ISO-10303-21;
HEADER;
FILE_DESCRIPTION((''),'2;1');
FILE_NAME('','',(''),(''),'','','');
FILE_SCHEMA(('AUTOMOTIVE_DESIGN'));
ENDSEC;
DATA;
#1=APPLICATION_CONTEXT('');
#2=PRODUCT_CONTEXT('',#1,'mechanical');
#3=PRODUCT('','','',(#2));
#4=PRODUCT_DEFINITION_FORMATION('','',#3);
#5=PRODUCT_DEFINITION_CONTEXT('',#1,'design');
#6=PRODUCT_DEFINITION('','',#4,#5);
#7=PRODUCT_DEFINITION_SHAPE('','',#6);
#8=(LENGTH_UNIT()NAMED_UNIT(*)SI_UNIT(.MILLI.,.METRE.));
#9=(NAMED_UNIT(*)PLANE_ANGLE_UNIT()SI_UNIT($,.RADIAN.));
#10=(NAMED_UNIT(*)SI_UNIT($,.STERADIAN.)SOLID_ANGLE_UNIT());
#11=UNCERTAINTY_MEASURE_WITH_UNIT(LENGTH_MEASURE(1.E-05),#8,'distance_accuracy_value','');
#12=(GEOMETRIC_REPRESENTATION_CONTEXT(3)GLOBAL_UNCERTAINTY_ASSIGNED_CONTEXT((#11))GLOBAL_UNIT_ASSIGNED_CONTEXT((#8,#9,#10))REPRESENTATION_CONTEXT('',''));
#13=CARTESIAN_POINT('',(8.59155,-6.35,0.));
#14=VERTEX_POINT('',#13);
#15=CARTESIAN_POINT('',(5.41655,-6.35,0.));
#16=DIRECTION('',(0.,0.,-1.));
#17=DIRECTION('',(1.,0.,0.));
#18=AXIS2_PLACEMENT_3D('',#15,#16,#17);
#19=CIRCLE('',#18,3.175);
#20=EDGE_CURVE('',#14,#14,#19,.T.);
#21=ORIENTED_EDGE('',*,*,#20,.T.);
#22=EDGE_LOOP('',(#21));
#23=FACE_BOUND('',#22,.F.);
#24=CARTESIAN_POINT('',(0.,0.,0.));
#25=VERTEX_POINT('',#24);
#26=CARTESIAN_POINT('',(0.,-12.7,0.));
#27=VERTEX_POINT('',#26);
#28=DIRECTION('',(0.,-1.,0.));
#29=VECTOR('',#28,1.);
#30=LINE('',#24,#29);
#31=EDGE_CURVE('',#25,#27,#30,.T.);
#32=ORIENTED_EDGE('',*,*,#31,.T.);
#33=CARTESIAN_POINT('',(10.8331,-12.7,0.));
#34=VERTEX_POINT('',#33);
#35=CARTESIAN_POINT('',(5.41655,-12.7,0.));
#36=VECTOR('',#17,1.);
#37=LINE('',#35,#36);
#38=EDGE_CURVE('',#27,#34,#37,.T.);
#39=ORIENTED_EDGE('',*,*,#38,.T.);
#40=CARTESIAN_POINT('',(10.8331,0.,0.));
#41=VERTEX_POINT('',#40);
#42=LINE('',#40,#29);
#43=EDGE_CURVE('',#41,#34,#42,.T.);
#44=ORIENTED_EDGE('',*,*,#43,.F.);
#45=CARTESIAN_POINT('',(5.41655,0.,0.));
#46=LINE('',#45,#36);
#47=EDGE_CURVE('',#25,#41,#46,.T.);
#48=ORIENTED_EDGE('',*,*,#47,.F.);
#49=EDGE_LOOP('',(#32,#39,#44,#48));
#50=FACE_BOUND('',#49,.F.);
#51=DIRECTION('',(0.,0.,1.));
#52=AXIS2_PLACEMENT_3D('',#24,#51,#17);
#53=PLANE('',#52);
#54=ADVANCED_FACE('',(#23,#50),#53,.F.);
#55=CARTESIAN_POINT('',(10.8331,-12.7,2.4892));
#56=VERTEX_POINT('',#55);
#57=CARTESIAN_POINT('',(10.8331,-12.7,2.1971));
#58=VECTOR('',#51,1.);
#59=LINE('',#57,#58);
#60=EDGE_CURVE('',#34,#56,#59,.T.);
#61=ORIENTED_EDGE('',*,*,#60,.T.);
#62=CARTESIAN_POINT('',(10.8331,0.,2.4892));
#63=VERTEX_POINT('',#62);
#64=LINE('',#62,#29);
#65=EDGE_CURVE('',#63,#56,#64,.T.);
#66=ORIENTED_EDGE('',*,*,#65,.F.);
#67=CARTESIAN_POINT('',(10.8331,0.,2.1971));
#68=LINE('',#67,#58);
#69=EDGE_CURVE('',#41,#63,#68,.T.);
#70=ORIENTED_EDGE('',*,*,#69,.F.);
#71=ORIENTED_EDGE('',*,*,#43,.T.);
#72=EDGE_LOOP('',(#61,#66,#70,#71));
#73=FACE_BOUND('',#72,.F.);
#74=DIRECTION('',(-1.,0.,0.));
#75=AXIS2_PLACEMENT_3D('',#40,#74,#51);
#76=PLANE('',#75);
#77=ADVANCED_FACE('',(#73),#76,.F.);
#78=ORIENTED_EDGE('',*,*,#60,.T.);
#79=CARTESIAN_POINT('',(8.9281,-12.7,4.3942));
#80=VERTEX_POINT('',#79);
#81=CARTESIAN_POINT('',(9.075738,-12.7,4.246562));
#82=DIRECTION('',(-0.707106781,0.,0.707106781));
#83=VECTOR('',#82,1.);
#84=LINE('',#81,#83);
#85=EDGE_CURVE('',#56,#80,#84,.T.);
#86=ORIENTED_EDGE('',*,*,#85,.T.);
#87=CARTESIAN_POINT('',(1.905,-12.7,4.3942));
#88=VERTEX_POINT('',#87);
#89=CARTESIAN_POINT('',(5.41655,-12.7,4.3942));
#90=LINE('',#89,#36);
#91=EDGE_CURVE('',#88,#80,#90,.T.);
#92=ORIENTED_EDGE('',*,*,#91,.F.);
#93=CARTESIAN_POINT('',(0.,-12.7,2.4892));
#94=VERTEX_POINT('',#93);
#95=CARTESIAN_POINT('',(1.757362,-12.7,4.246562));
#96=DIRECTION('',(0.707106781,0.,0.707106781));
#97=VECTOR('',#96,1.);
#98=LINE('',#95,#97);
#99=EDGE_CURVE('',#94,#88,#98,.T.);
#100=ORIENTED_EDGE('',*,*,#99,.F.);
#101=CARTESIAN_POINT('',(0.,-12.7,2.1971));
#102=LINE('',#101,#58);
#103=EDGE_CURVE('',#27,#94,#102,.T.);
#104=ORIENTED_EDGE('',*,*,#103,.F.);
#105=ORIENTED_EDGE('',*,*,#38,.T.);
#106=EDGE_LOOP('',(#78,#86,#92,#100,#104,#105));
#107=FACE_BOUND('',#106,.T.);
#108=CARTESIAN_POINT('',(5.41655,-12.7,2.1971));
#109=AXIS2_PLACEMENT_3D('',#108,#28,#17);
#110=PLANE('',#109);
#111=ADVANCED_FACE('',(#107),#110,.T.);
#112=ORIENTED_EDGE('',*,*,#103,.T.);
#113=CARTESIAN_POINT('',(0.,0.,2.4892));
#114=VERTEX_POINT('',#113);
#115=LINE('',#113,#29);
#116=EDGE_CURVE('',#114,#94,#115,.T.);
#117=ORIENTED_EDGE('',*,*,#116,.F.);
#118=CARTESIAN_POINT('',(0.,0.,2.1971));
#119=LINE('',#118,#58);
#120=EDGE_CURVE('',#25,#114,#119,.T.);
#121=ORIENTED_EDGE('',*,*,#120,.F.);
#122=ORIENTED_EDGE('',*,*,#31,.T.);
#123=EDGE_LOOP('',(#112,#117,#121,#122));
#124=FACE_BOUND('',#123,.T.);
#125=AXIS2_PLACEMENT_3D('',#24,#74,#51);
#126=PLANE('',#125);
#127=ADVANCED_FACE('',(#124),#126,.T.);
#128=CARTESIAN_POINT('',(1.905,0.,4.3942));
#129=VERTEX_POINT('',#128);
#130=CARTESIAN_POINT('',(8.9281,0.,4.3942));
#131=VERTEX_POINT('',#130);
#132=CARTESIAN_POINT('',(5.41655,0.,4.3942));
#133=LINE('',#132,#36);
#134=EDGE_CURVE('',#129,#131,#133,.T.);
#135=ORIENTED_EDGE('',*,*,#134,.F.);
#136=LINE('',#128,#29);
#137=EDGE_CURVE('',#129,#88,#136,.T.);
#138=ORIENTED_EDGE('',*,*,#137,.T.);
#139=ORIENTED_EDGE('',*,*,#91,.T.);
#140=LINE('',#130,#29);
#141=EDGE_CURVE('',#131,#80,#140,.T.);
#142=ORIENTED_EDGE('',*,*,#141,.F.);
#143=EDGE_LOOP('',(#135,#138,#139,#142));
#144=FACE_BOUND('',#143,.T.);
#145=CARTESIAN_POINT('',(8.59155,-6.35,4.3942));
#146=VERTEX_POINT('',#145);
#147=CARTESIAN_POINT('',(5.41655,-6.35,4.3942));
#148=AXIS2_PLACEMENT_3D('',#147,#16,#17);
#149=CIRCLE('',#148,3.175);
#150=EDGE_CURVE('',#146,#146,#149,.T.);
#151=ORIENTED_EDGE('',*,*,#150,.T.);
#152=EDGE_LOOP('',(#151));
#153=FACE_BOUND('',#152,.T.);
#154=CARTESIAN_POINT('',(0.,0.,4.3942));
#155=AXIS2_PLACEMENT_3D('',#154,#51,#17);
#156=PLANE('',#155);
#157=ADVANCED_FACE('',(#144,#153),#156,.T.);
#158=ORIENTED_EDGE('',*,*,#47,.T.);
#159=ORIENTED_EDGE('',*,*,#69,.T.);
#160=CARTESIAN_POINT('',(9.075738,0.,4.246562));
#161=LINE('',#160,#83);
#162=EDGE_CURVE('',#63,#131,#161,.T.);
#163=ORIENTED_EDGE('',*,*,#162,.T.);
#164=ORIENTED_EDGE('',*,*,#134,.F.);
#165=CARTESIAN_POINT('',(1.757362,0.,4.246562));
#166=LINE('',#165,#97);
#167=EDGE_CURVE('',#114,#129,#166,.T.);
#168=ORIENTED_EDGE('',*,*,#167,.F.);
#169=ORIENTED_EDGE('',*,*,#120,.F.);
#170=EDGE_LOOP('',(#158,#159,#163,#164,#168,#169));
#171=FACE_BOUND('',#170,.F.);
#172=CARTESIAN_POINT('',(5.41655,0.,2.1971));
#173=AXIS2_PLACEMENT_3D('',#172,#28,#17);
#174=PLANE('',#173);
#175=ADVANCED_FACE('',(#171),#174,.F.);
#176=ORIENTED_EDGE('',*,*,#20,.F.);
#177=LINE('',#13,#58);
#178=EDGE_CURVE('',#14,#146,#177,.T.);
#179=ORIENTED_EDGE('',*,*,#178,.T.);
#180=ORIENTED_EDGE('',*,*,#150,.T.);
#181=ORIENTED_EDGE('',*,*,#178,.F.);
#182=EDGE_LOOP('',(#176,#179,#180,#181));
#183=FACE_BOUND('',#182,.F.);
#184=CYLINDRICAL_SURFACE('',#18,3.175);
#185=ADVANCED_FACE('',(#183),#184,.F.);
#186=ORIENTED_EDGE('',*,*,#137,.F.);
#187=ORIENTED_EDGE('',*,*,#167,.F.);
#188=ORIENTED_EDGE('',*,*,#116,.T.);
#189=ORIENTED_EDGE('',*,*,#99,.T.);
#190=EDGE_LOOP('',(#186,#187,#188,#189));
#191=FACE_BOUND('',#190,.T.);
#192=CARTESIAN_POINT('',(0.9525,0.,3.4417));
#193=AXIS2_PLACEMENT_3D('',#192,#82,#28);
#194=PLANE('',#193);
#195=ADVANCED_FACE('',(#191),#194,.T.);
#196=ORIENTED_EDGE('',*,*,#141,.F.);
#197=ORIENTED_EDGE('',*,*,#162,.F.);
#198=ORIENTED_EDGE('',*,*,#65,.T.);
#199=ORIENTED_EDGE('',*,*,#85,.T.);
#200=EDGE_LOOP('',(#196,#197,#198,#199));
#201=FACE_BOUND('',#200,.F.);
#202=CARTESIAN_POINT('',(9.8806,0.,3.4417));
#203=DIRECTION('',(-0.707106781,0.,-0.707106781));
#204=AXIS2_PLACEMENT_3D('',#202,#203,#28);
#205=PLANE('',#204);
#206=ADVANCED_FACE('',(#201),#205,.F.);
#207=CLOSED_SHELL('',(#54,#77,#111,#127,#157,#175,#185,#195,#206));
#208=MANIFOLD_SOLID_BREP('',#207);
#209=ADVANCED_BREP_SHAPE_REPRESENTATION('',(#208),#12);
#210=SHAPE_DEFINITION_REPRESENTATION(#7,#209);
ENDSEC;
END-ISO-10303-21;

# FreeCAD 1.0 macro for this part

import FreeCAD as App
import Part
import Sketcher

V = App.Vector
Q = App.Units.Quantity


def edges_at(feature, points):
    """Names of the edges that pass closest to the given points."""
    edges = feature.Shape.Edges
    near = lambda p: min(range(len(edges)), key=lambda i: edges[i].distToShape(Part.Vertex(*p))[0])
    return sorted({f"Edge{near(p) + 1}" for p in points})


def add_polygon(sketch, points):
    """Adds a closed chain of lines whose ends are joined by coincident constraints."""
    first, n = sketch.GeometryCount, len(points)
    for a, b in zip(points, points[1:] + points[:1]):
        sketch.addGeometry(Part.LineSegment(App.Vector(*a, 0), App.Vector(*b, 0)), False)
    for i in range(n):
        sketch.addConstraint(Sketcher.Constraint("Coincident", first + i, 2, first + (i + 1) % n, 1))

doc = App.newDocument("Part")
params = doc.addObject("Spreadsheet::Sheet", "Params")
for row, (alias, value) in enumerate([
    ("sketch1_height", "0.173 in"),
    ("pad1_length", "0.5 in"),
    ("chamfer_size", "0.075 in"),
    ("sketch2_diameter", "0.25 in"),
    ("pocket1_length", "1 in"),
], start=1):
    params.set(f"A{row}", alias)
    params.set(f"B{row}", "=" + value)
    params.setAlias(f"B{row}", alias)

body = doc.addObject("PartDesign::Body", "Body")

# Sketch on XZ plane
sketch1 = body.newObject("Sketcher::SketchObject", "Sketch")
sketch1.AttachmentSupport = (doc.getObject("XZ_Plane"), [""])
sketch1.MapMode = "FlatFace"
add_polygon(sketch1, [(0, 4.4), (0, 0), (10.8, 0), (10.8, 4.4)])  # lines 0-3
sketch1.addConstraint([
    Sketcher.Constraint("Vertical", 0),
    Sketcher.Constraint("Horizontal", 1),
    Sketcher.Constraint("Vertical", 2),
    Sketcher.Constraint("Horizontal", 3),
    Sketcher.Constraint("Coincident", 0, 2, -1, 1),
    Sketcher.Constraint("DistanceY", 0, 2, 0, 1, Q("0.173 in")),
    Sketcher.Constraint("DistanceX", 1, 1, 1, 2, Q("0.4265 in")),
])
sketch1.setExpression("Constraints[9]", "Params.sketch1_height")
pad1 = body.newObject("PartDesign::Pad", "Pad")
pad1.Profile = sketch1
pad1.setExpression("Length", "Params.pad1_length")
doc.recompute()

chamfer = body.newObject("PartDesign::Chamfer", "Chamfer")
chamfer.Base = (pad1, edges_at(pad1, [(10.833, -6.35, 4.394), (0, -6.35, 4.394)]))
chamfer.setExpression("Size", "Params.chamfer_size")

# Sketch on XY plane
sketch2 = body.newObject("Sketcher::SketchObject", "Sketch001")
sketch2.AttachmentSupport = (doc.getObject("XY_Plane"), [""])
sketch2.MapMode = "FlatFace"
sketch2.addGeometry(Part.Circle(V(5.4, -6.3, 0), V(0, 0, 1), 3.2), False)
sketch2.addConstraint([
    Sketcher.Constraint("Diameter", 0, Q("0.25 in")),
    Sketcher.Constraint("DistanceY", 0, 3, -1, 1, Q("0.25 in")),
    Sketcher.Constraint("DistanceX", -1, 1, 0, 3, 5.41655),
])
sketch2.setExpression("Constraints[0]", "Params.sketch2_diameter")
pocket1 = body.newObject("PartDesign::Pocket", "Pocket")
pocket1.Profile = sketch2
pocket1.setExpression("Length", "Params.pocket1_length")
pocket1.Reversed = True

doc.recompute()
